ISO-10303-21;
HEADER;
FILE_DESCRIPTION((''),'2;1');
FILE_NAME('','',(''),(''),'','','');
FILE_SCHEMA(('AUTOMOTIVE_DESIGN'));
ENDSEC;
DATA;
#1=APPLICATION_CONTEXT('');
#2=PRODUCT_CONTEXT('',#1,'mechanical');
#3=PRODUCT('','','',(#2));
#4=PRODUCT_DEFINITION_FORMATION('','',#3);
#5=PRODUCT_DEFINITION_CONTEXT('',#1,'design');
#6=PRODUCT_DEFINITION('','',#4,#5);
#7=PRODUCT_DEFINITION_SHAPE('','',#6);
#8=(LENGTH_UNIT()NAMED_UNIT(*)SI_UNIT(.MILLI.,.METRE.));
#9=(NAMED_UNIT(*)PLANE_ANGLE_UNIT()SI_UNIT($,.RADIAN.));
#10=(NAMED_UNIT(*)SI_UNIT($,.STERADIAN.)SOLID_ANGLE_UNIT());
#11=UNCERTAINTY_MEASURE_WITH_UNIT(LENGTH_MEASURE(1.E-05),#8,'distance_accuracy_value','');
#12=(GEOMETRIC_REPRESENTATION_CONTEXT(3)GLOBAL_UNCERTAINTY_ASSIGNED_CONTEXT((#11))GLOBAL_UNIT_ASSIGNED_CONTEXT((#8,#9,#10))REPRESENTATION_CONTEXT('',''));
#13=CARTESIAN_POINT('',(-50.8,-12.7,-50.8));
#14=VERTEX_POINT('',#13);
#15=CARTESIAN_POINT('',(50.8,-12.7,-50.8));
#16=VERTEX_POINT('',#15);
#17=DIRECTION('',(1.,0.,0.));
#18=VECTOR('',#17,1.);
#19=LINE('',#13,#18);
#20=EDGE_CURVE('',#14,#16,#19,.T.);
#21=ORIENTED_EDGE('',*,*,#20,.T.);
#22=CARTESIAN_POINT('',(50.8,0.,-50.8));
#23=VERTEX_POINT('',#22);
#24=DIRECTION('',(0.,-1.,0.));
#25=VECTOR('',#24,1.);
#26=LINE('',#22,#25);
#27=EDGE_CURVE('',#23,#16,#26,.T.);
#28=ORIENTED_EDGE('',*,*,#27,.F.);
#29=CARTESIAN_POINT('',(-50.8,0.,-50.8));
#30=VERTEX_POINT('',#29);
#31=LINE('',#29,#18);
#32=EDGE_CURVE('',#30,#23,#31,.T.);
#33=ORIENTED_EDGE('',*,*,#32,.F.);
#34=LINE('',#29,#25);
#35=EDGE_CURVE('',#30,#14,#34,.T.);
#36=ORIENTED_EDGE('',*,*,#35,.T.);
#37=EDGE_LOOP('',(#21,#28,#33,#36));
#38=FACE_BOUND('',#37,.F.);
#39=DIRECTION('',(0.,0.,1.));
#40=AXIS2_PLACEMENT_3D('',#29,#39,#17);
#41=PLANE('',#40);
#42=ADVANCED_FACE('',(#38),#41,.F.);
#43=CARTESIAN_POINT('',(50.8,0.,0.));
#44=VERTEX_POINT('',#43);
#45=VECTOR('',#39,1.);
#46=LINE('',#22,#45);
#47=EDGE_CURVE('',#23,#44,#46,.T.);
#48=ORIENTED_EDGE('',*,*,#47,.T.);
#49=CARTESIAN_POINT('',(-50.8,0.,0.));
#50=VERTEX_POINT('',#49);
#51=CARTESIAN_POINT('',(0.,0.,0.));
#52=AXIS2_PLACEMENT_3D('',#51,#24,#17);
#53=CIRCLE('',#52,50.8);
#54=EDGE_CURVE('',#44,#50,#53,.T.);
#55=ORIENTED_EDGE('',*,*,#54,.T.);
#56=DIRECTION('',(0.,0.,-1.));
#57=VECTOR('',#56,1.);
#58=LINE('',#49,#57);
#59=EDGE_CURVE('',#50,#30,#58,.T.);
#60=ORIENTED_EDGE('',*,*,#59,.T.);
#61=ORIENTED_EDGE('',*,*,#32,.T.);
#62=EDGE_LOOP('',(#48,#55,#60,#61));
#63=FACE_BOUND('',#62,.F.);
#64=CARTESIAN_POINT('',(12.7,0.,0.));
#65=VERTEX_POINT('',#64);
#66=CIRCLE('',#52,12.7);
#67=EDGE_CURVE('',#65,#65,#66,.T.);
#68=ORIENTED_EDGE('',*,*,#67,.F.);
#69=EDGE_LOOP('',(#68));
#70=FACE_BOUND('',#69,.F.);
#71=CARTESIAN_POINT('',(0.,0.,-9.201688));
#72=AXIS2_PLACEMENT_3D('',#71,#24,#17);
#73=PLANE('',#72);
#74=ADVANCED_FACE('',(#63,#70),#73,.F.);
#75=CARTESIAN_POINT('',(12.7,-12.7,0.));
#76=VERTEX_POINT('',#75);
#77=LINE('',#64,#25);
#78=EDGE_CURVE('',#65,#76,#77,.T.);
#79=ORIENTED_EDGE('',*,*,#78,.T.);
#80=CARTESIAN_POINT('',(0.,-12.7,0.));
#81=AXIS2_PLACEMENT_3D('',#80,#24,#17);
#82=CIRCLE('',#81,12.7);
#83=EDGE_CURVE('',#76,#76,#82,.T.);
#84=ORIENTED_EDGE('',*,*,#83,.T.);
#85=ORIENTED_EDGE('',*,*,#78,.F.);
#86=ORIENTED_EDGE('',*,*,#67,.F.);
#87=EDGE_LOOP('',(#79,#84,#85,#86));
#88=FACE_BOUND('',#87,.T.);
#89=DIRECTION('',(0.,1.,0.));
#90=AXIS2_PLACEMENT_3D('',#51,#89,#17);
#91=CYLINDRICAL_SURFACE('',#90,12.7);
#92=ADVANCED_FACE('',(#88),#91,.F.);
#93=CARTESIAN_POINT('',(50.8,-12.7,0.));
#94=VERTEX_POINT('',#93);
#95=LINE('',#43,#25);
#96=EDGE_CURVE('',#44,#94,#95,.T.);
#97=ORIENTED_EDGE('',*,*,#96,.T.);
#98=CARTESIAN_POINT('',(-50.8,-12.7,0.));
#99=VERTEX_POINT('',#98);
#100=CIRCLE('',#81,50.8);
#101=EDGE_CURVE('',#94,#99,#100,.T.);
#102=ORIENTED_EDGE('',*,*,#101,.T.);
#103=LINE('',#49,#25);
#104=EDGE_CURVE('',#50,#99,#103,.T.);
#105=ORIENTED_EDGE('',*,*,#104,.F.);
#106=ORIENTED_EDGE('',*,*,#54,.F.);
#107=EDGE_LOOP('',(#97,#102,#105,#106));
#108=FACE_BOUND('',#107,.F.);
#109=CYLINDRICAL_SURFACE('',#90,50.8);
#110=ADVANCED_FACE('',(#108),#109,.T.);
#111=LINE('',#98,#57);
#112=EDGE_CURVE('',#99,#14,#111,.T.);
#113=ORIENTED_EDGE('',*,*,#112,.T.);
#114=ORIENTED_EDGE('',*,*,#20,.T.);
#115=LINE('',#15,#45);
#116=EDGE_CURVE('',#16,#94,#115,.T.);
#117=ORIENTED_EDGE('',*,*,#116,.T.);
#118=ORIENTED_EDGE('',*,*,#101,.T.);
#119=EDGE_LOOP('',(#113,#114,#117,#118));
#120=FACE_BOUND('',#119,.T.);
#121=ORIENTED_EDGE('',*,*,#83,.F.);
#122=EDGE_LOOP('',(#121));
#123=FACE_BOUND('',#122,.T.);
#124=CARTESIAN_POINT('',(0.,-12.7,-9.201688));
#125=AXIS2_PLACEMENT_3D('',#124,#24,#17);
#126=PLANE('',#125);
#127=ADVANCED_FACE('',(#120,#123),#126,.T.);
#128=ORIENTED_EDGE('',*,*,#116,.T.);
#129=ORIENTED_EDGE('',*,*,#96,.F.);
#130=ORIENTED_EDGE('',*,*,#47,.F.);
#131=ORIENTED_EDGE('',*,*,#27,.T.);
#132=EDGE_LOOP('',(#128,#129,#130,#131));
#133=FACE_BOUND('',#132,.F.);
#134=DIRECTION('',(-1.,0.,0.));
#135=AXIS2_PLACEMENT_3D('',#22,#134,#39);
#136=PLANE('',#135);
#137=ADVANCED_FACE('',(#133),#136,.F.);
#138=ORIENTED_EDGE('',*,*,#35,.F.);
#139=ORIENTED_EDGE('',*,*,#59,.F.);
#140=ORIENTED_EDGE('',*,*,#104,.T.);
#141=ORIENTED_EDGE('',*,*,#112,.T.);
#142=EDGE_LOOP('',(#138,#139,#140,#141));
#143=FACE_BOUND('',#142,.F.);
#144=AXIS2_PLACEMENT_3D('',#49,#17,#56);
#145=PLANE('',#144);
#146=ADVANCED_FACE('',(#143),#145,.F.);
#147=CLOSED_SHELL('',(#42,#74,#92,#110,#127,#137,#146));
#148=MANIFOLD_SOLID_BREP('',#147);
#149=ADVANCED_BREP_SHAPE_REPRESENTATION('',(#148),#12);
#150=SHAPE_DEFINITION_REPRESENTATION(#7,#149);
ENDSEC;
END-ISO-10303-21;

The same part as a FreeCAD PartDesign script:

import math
import FreeCAD as App
import Part
import Sketcher
Q = App.Units.Quantity

doc = App.newDocument("Part")
body = doc.addObject("PartDesign::Body", "Body")

sketch1 = body.newObject("Sketcher::SketchObject", "Sketch")
sketch1.AttachmentSupport = (doc.getObject("XZ_Plane"), [""])
sketch1.MapMode = "FlatFace"
sketch1.addGeometry([
    Part.ArcOfCircle(Part.Circle(App.Vector(0, 0, 0), App.Vector(0, 0, 1), 51), math.radians(0), math.radians(180)),
    Part.LineSegment(App.Vector(-51, 0, 0), App.Vector(-51, -51, 0)),
    Part.LineSegment(App.Vector(-51, -51, 0), App.Vector(51, -51, 0)),
    Part.LineSegment(App.Vector(51, -51, 0), App.Vector(51, 0, 0)),
    Part.Circle(App.Vector(0, 0, 0), App.Vector(0, 0, 1), 13),
], False)
sketch1.addConstraint([
    Sketcher.Constraint("Tangent", 0, 2, 1, 1),
    Sketcher.Constraint("Coincident", 1, 2, 2, 1),
    Sketcher.Constraint("Coincident", 2, 2, 3, 1),
    Sketcher.Constraint("Tangent", 3, 2, 0, 1),
    Sketcher.Constraint("Vertical", 1),
    Sketcher.Constraint("Horizontal", 2),
    Sketcher.Constraint("Vertical", 3),
    Sketcher.Constraint("Coincident", 0, 3, -1, 1),
    Sketcher.Constraint("Coincident", 4, 3, -1, 1),
    Sketcher.Constraint("Diameter", 4, Q("1 in")),
    Sketcher.Constraint("Radius", 0, Q("2 in")),
    Sketcher.Constraint("DistanceY", 1, 2, 1, 1, Q("2 in")),
])
pad1 = body.newObject("PartDesign::Pad", "Pad")
pad1.Profile = sketch1
pad1.Length = Q("0.5 in")

doc.recompute()
